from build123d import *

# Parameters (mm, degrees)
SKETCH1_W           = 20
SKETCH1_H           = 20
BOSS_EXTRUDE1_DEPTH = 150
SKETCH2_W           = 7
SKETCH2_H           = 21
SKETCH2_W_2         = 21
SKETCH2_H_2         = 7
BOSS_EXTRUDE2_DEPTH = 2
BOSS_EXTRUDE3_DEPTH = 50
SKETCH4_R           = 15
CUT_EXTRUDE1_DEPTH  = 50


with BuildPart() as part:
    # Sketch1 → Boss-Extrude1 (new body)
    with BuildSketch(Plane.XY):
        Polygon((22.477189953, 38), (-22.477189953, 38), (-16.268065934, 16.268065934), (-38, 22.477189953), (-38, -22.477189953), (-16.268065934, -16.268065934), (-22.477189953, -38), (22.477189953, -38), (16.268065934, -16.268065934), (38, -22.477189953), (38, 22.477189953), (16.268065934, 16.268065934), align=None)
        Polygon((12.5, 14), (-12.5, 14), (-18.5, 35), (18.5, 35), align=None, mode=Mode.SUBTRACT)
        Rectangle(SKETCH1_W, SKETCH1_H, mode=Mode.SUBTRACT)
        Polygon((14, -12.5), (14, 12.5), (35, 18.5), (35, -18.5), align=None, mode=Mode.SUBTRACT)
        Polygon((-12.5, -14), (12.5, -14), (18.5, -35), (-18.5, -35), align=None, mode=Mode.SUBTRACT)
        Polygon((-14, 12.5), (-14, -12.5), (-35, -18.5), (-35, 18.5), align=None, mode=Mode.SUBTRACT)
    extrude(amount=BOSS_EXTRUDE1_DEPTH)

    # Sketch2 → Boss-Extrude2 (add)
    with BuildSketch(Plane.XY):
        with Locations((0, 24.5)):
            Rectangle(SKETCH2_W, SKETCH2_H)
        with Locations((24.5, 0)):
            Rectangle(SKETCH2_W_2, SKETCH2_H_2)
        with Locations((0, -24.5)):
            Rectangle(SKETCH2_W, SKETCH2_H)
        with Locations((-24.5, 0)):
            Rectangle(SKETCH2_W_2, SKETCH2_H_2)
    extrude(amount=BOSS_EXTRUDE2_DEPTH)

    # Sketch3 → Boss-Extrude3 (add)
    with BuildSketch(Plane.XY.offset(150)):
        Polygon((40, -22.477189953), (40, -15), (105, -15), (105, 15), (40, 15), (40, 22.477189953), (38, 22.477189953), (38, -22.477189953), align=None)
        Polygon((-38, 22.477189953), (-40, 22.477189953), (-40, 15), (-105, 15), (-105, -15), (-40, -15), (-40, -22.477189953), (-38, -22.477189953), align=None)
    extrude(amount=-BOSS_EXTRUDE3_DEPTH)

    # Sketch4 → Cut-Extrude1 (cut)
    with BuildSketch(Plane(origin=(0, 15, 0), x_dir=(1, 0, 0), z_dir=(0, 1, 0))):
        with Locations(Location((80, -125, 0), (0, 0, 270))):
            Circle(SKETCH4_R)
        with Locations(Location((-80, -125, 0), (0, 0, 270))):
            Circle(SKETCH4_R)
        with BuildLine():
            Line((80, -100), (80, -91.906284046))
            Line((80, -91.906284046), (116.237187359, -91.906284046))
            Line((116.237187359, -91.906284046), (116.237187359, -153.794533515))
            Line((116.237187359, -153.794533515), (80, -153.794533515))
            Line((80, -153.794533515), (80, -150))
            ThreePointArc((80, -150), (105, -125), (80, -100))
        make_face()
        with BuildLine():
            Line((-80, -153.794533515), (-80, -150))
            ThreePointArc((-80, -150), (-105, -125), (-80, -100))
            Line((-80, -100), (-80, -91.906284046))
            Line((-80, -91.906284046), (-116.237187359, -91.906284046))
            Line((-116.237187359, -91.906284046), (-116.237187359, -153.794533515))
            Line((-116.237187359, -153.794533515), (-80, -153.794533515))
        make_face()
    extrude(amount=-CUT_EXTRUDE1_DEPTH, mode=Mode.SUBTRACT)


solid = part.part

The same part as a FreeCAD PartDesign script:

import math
import FreeCAD as App
import Part
import Sketcher
from FreeCAD import Vector
Q = App.Units.Quantity

doc = App.newDocument("Part")
body = doc.addObject("PartDesign::Body", "Body")

sketch1 = body.newObject("Sketcher::SketchObject", "Sketch")
sketch1.AttachmentSupport = (doc.getObject("XY_Plane"), [""])
sketch1.MapMode = "FlatFace"
sketch1.addGeometry([
    Part.LineSegment(Vector(22, 38, 0), Vector(-22, 38, 0)),
    Part.LineSegment(Vector(-22, 38, 0), Vector(-16, 16, 0)),
    Part.LineSegment(Vector(-16, 16, 0), Vector(-38, 22, 0)),
    Part.LineSegment(Vector(-38, 22, 0), Vector(-38, -22, 0)),
    Part.LineSegment(Vector(-38, -22, 0), Vector(-16, -16, 0)),
    Part.LineSegment(Vector(-16, -16, 0), Vector(-22, -38, 0)),
    Part.LineSegment(Vector(-22, -38, 0), Vector(22, -38, 0)),
    Part.LineSegment(Vector(22, -38, 0), Vector(16, -16, 0)),
    Part.LineSegment(Vector(16, -16, 0), Vector(38, -22, 0)),
    Part.LineSegment(Vector(38, -22, 0), Vector(38, 22, 0)),
    Part.LineSegment(Vector(38, 22, 0), Vector(16, 16, 0)),
    Part.LineSegment(Vector(16, 16, 0), Vector(22, 38, 0)),
    Part.LineSegment(Vector(-18, -35, 0), Vector(-12, -14, 0)),
    Part.LineSegment(Vector(-12, -14, 0), Vector(12, -14, 0)),
    Part.LineSegment(Vector(12, -14, 0), Vector(18, -35, 0)),
    Part.LineSegment(Vector(18, -35, 0), Vector(-18, -35, 0)),
    Part.LineSegment(Vector(-35, 18, 0), Vector(-14, 12, 0)),
    Part.LineSegment(Vector(-14, 12, 0), Vector(-14, -12, 0)),
    Part.LineSegment(Vector(-14, -12, 0), Vector(-35, -18, 0)),
    Part.LineSegment(Vector(-35, -18, 0), Vector(-35, 18, 0)),
    Part.LineSegment(Vector(10, -10, 0), Vector(-10, -10, 0)),
    Part.LineSegment(Vector(-10, -10, 0), Vector(-10, 10, 0)),
    Part.LineSegment(Vector(-10, 10, 0), Vector(10, 10, 0)),
    Part.LineSegment(Vector(10, 10, 0), Vector(10, -10, 0)),
    Part.LineSegment(Vector(35, -18, 0), Vector(14, -12, 0)),
    Part.LineSegment(Vector(14, -12, 0), Vector(14, 12, 0)),
    Part.LineSegment(Vector(14, 12, 0), Vector(35, 18, 0)),
    Part.LineSegment(Vector(35, 18, 0), Vector(35, -18, 0)),
    Part.LineSegment(Vector(18, 35, 0), Vector(12, 14, 0)),
    Part.LineSegment(Vector(12, 14, 0), Vector(-12, 14, 0)),
    Part.LineSegment(Vector(-12, 14, 0), Vector(-18, 35, 0)),
    Part.LineSegment(Vector(-18, 35, 0), Vector(18, 35, 0)),
], False)
sketch1.addConstraint([
    Sketcher.Constraint("Coincident", 0, 2, 1, 1),
    Sketcher.Constraint("Coincident", 1, 2, 2, 1),
    Sketcher.Constraint("Coincident", 2, 2, 3, 1),
    Sketcher.Constraint("Coincident", 3, 2, 4, 1),
    Sketcher.Constraint("Coincident", 4, 2, 5, 1),
    Sketcher.Constraint("Coincident", 5, 2, 6, 1),
    Sketcher.Constraint("Coincident", 6, 2, 7, 1),
    Sketcher.Constraint("Coincident", 7, 2, 8, 1),
    Sketcher.Constraint("Coincident", 8, 2, 9, 1),
    Sketcher.Constraint("Coincident", 9, 2, 10, 1),
    Sketcher.Constraint("Coincident", 10, 2, 11, 1),
    Sketcher.Constraint("Coincident", 11, 2, 0, 1),
    Sketcher.Constraint("Coincident", 12, 2, 13, 1),
    Sketcher.Constraint("Coincident", 13, 2, 14, 1),
    Sketcher.Constraint("Coincident", 14, 2, 15, 1),
    Sketcher.Constraint("Coincident", 15, 2, 12, 1),
    Sketcher.Constraint("Coincident", 16, 2, 17, 1),
    Sketcher.Constraint("Coincident", 17, 2, 18, 1),
    Sketcher.Constraint("Coincident", 18, 2, 19, 1),
    Sketcher.Constraint("Coincident", 19, 2, 16, 1),
    Sketcher.Constraint("Coincident", 20, 2, 21, 1),
    Sketcher.Constraint("Coincident", 21, 2, 22, 1),
    Sketcher.Constraint("Coincident", 22, 2, 23, 1),
    Sketcher.Constraint("Coincident", 23, 2, 20, 1),
    Sketcher.Constraint("Coincident", 24, 2, 25, 1),
    Sketcher.Constraint("Coincident", 25, 2, 26, 1),
    Sketcher.Constraint("Coincident", 26, 2, 27, 1),
    Sketcher.Constraint("Coincident", 27, 2, 24, 1),
    Sketcher.Constraint("Coincident", 28, 2, 29, 1),
    Sketcher.Constraint("Coincident", 29, 2, 30, 1),
    Sketcher.Constraint("Coincident", 30, 2, 31, 1),
    Sketcher.Constraint("Coincident", 31, 2, 28, 1),
    Sketcher.Constraint("Horizontal", 0),
    Sketcher.Constraint("Vertical", 3),
    Sketcher.Constraint("Horizontal", 6),
    Sketcher.Constraint("Vertical", 9),
    Sketcher.Constraint("Horizontal", 13),
    Sketcher.Constraint("Horizontal", 15),
    Sketcher.Constraint("Vertical", 17),
    Sketcher.Constraint("Vertical", 19),
    Sketcher.Constraint("Horizontal", 20),
    Sketcher.Constraint("Vertical", 21),
    Sketcher.Constraint("Horizontal", 22),
    Sketcher.Constraint("Vertical", 23),
    Sketcher.Constraint("Vertical", 25),
    Sketcher.Constraint("Vertical", 27),
    Sketcher.Constraint("Horizontal", 29),
    Sketcher.Constraint("Horizontal", 31),
    Sketcher.Constraint("Symmetric", 0, 2, 6, 2, -1, 1),
    Sketcher.Constraint("Symmetric", 1, 2, 7, 2, -1, 1),
    Sketcher.Constraint("Symmetric", 2, 2, 8, 2, -1, 1),
    Sketcher.Constraint("Symmetric", 4, 2, 10, 2, -1, 1),
    Sketcher.Constraint("Symmetric", 20, 2, 22, 2, -1, 1),
    Sketcher.Constraint("Symmetric", 16, 2, 24, 2, -1, 1),
    Sketcher.Constraint("Symmetric", 18, 2, 26, 2, -1, 1),
    Sketcher.Constraint("Symmetric", 12, 2, 28, 2, -1, 1),
    Sketcher.Constraint("Symmetric", 14, 2, 30, 2, -1, 1),
    Sketcher.Constraint("Symmetric", 4, 2, 7, 2, -2),
    Sketcher.Constraint("Perpendicular", 1, 4),
    Sketcher.Constraint("Perpendicular", 2, 5),
    Sketcher.Constraint("Perpendicular", 7, 10),
    Sketcher.Constraint("Perpendicular", 8, 11),
    Sketcher.Constraint("Parallel", 11, 12),
    Sketcher.Constraint("Perpendicular", 10, 14),
    Sketcher.Constraint("Perpendicular", 12, 16),
    Sketcher.Constraint("Perpendicular", 14, 18),
    Sketcher.Constraint("Parallel", 16, 24),
    Sketcher.Constraint("Parallel", 18, 26),
    Sketcher.Constraint("Perpendicular", 24, 28),
    Sketcher.Constraint("Perpendicular", 26, 30),
    Sketcher.Constraint("Horizontal", 3, 2, 8, 2),
    Sketcher.Constraint("Horizontal", 17, 2, 24, 2),
    Sketcher.Constraint("Vertical", 13, 2, 28, 2),
    Sketcher.Constraint("Equal", 6, 3),
    Sketcher.Constraint("Equal", 29, 17),
    Sketcher.Constraint("Equal", 31, 19),
    Sketcher.Constraint("Equal", 22, 21),
    Sketcher.Constraint("Equal", 1, 2),
    Sketcher.Constraint("DistanceX", 13, 1, 13, 2, Q("25 mm")),
    Sketcher.Constraint("DistanceX", 15, 2, 15, 1, Q("37 mm")),
    Sketcher.Constraint("DistanceX", 20, 2, 20, 1, Q("20 mm")),
    Sketcher.Constraint("DistanceY", -1, 1, 0, 2, Q("38 mm")),
    Sketcher.Constraint("DistanceY", 12, 2, -1, 1, Q("14 mm")),
    Sketcher.Constraint("DistanceY", 14, 2, -1, 1, Q("35 mm")),
    Sketcher.Constraint("DistanceX", 16, 2, -1, 1, Q("14 mm")),
    Sketcher.Constraint("DistanceX", 0, 2, 0, 1, Q("44.95438 mm")),
])
pad1 = body.newObject("PartDesign::Pad", "Pad")
pad1.Profile = sketch1
pad1.Length = 150

sketch2 = body.newObject("Sketcher::SketchObject", "Sketch001")
sketch2.AttachmentSupport = (doc.getObject("XY_Plane"), [""])
sketch2.MapMode = "FlatFace"
sketch2.addGeometry([
    Part.LineSegment(Vector(-4, 35, 0), Vector(-4, 14, 0)),
    Part.LineSegment(Vector(-4, 14, 0), Vector(4, 14, 0)),
    Part.LineSegment(Vector(4, 14, 0), Vector(4, 35, 0)),
    Part.LineSegment(Vector(4, 35, 0), Vector(-4, 35, 0)),
    Part.LineSegment(Vector(14, 4, 0), Vector(14, -4, 0)),
    Part.LineSegment(Vector(14, -4, 0), Vector(35, -4, 0)),
    Part.LineSegment(Vector(35, -4, 0), Vector(35, 4, 0)),
    Part.LineSegment(Vector(35, 4, 0), Vector(14, 4, 0)),
    Part.LineSegment(Vector(-4, -14, 0), Vector(-4, -35, 0)),
    Part.LineSegment(Vector(-4, -35, 0), Vector(4, -35, 0)),
    Part.LineSegment(Vector(4, -35, 0), Vector(4, -14, 0)),
    Part.LineSegment(Vector(4, -14, 0), Vector(-4, -14, 0)),
    Part.LineSegment(Vector(-35, 4, 0), Vector(-35, -4, 0)),
    Part.LineSegment(Vector(-35, -4, 0), Vector(-14, -4, 0)),
    Part.LineSegment(Vector(-14, -4, 0), Vector(-14, 4, 0)),
    Part.LineSegment(Vector(-14, 4, 0), Vector(-35, 4, 0)),
], False)
sketch2.addConstraint([
    Sketcher.Constraint("Coincident", 0, 2, 1, 1),
    Sketcher.Constraint("Coincident", 1, 2, 2, 1),
    Sketcher.Constraint("Coincident", 2, 2, 3, 1),
    Sketcher.Constraint("Coincident", 3, 2, 0, 1),
    Sketcher.Constraint("Coincident", 4, 2, 5, 1),
    Sketcher.Constraint("Coincident", 5, 2, 6, 1),
    Sketcher.Constraint("Coincident", 6, 2, 7, 1),
    Sketcher.Constraint("Coincident", 7, 2, 4, 1),
    Sketcher.Constraint("Coincident", 8, 2, 9, 1),
    Sketcher.Constraint("Coincident", 9, 2, 10, 1),
    Sketcher.Constraint("Coincident", 10, 2, 11, 1),
    Sketcher.Constraint("Coincident", 11, 2, 8, 1),
    Sketcher.Constraint("Coincident", 12, 2, 13, 1),
    Sketcher.Constraint("Coincident", 13, 2, 14, 1),
    Sketcher.Constraint("Coincident", 14, 2, 15, 1),
    Sketcher.Constraint("Coincident", 15, 2, 12, 1),
    Sketcher.Constraint("Vertical", 0),
    Sketcher.Constraint("Horizontal", 1),
    Sketcher.Constraint("Vertical", 2),
    Sketcher.Constraint("Horizontal", 3),
    Sketcher.Constraint("Vertical", 4),
    Sketcher.Constraint("Horizontal", 5),
    Sketcher.Constraint("Vertical", 6),
    Sketcher.Constraint("Horizontal", 7),
    Sketcher.Constraint("Vertical", 8),
    Sketcher.Constraint("Horizontal", 9),
    Sketcher.Constraint("Vertical", 10),
    Sketcher.Constraint("Horizontal", 11),
    Sketcher.Constraint("Vertical", 12),
    Sketcher.Constraint("Horizontal", 13),
    Sketcher.Constraint("Vertical", 14),
    Sketcher.Constraint("Horizontal", 15),
    Sketcher.Constraint("Symmetric", 2, 2, 8, 2, -1, 1),
    Sketcher.Constraint("Symmetric", 0, 2, 10, 2, -1, 1),
    Sketcher.Constraint("Symmetric", 6, 2, 12, 2, -1, 1),
    Sketcher.Constraint("Symmetric", 4, 2, 14, 2, -1, 1),
    Sketcher.Constraint("Horizontal", 5, 2, 12, 2),
    Sketcher.Constraint("Vertical", 3, 2, 8, 2),
    Sketcher.Constraint("Equal", 15, 0),
    Sketcher.Constraint("Equal", 11, 4),
    Sketcher.Constraint("DistanceX", 1, 1, 1, 2, Q("7 mm")),
    Sketcher.Constraint("DistanceX", 5, 1, 5, 2, Q("21 mm")),
    Sketcher.Constraint("DistanceY", -1, 1, 0, 2, Q("14 mm")),
    Sketcher.Constraint("DistanceX", -1, 1, 4, 2, Q("14 mm")),
])
pad2 = body.newObject("PartDesign::Pad", "Pad001")
pad2.Profile = sketch2
pad2.Length = 2

sketch3 = body.newObject("Sketcher::SketchObject", "Sketch002")
sketch3.AttachmentSupport = (doc.getObject("XY_Plane"), [""])
sketch3.MapMode = "FlatFace"
sketch3.AttachmentOffset = App.Placement(Vector(0, 0, 150), App.Rotation())
sketch3.addGeometry([
    Part.LineSegment(Vector(40, -22.5, 0), Vector(40, -15, 0)),
    Part.LineSegment(Vector(40, -15, 0), Vector(105, -15, 0)),
    Part.LineSegment(Vector(105, -15, 0), Vector(105, 15, 0)),
    Part.LineSegment(Vector(105, 15, 0), Vector(40, 15, 0)),
    Part.LineSegment(Vector(40, 15, 0), Vector(40, 22.5, 0)),
    Part.LineSegment(Vector(40, 22.5, 0), Vector(38, 22.5, 0)),
    Part.LineSegment(Vector(38, 22.5, 0), Vector(38, -22.5, 0)),
    Part.LineSegment(Vector(38, -22.5, 0), Vector(40, -22.5, 0)),
    Part.LineSegment(Vector(-38, 22.5, 0), Vector(-40, 22.5, 0)),
    Part.LineSegment(Vector(-40, 22.5, 0), Vector(-40, 15, 0)),
    Part.LineSegment(Vector(-40, 15, 0), Vector(-105, 15, 0)),
    Part.LineSegment(Vector(-105, 15, 0), Vector(-105, -15, 0)),
    Part.LineSegment(Vector(-105, -15, 0), Vector(-40, -15, 0)),
    Part.LineSegment(Vector(-40, -15, 0), Vector(-40, -22.5, 0)),
    Part.LineSegment(Vector(-40, -22.5, 0), Vector(-38, -22.5, 0)),
    Part.LineSegment(Vector(-38, -22.5, 0), Vector(-38, 22.5, 0)),
], False)
sketch3.addConstraint([
    Sketcher.Constraint("Coincident", 0, 2, 1, 1),
    Sketcher.Constraint("Coincident", 1, 2, 2, 1),
    Sketcher.Constraint("Coincident", 2, 2, 3, 1),
    Sketcher.Constraint("Coincident", 3, 2, 4, 1),
    Sketcher.Constraint("Coincident", 4, 2, 5, 1),
    Sketcher.Constraint("Coincident", 5, 2, 6, 1),
    Sketcher.Constraint("Coincident", 6, 2, 7, 1),
    Sketcher.Constraint("Coincident", 7, 2, 0, 1),
    Sketcher.Constraint("Coincident", 8, 2, 9, 1),
    Sketcher.Constraint("Coincident", 9, 2, 10, 1),
    Sketcher.Constraint("Coincident", 10, 2, 11, 1),
    Sketcher.Constraint("Coincident", 11, 2, 12, 1),
    Sketcher.Constraint("Coincident", 12, 2, 13, 1),
    Sketcher.Constraint("Coincident", 13, 2, 14, 1),
    Sketcher.Constraint("Coincident", 14, 2, 15, 1),
    Sketcher.Constraint("Coincident", 15, 2, 8, 1),
    Sketcher.Constraint("Vertical", 0),
    Sketcher.Constraint("Horizontal", 1),
    Sketcher.Constraint("Vertical", 2),
    Sketcher.Constraint("Horizontal", 3),
    Sketcher.Constraint("Vertical", 4),
    Sketcher.Constraint("Horizontal", 5),
    Sketcher.Constraint("Vertical", 6),
    Sketcher.Constraint("Horizontal", 7),
    Sketcher.Constraint("Horizontal", 8),
    Sketcher.Constraint("Vertical", 9),
    Sketcher.Constraint("Horizontal", 10),
    Sketcher.Constraint("Vertical", 11),
    Sketcher.Constraint("Horizontal", 12),
    Sketcher.Constraint("Vertical", 13),
    Sketcher.Constraint("Horizontal", 14),
    Sketcher.Constraint("Vertical", 15),
    Sketcher.Constraint("Symmetric", 7, 2, 8, 2, -1, 1),
    Sketcher.Constraint("Symmetric", 1, 2, 10, 2, -1, 1),
    Sketcher.Constraint("Symmetric", 3, 2, 12, 2, -1, 1),
    Sketcher.Constraint("Symmetric", 5, 2, 14, 2, -1, 1),
    Sketcher.Constraint("Symmetric", 4, 2, 8, 2, -2),
    Sketcher.Constraint("Horizontal", 3, 2, 9, 2),
    Sketcher.Constraint("DistanceX", 1, 1, 1, 2, Q("65 mm")),
    Sketcher.Constraint("DistanceX", 5, 2, 5, 1, Q("2 mm")),
    Sketcher.Constraint("DistanceY", 2, 1, 2, 2, Q("30 mm")),
    Sketcher.Constraint("DistanceX", -1, 1, 0, 2, Q("40 mm")),
    Sketcher.Constraint("DistanceY", 0, 1, 0, 2, Q("7.47719 mm")),
])
pad3 = body.newObject("PartDesign::Pad", "Pad002")
pad3.Profile = sketch3
pad3.Length = 50
pad3.Reversed = True

sketch4 = body.newObject("Sketcher::SketchObject", "Sketch003")
sketch4.AttachmentSupport = (doc.getObject("XZ_Plane"), [""])
sketch4.MapMode = "FlatFace"
sketch4.AttachmentOffset = App.Placement(Vector(0, 0, -15), App.Rotation())
sketch4.addGeometry([
    Part.Circle(Vector(80, 125, 0), Vector(0, 0, 1), 15),
    Part.Circle(Vector(-80, 125, 0), Vector(0, 0, 1), 15),
    Part.LineSegment(Vector(80, 91.9, 0), Vector(80, 100, 0)),
    Part.ArcOfCircle(Part.Circle(Vector(80, 125, 0), Vector(0, 0, 1), 25), math.radians(-90), math.radians(90)),
    Part.LineSegment(Vector(80, 150, 0), Vector(80, 153.8, 0)),
    Part.LineSegment(Vector(80, 153.8, 0), Vector(116.2, 153.8, 0)),
    Part.LineSegment(Vector(116.2, 153.8, 0), Vector(116.2, 91.9, 0)),
    Part.LineSegment(Vector(116.2, 91.9, 0), Vector(80, 91.9, 0)),
    Part.LineSegment(Vector(-80, 153.8, 0), Vector(-80, 150, 0)),
    Part.ArcOfCircle(Part.Circle(Vector(-80, 125, 0), Vector(0, 0, 1), 25), math.radians(90), math.radians(270)),
    Part.LineSegment(Vector(-80, 100, 0), Vector(-80, 91.9, 0)),
    Part.LineSegment(Vector(-80, 91.9, 0), Vector(-116.2, 91.9, 0)),
    Part.LineSegment(Vector(-116.2, 91.9, 0), Vector(-116.2, 153.8, 0)),
    Part.LineSegment(Vector(-116.2, 153.8, 0), Vector(-80, 153.8, 0)),
], False)
sketch4.addConstraint([
    Sketcher.Constraint("Coincident", 2, 2, 3, 1),
    Sketcher.Constraint("Coincident", 3, 2, 4, 1),
    Sketcher.Constraint("Coincident", 4, 2, 5, 1),
    Sketcher.Constraint("Coincident", 5, 2, 6, 1),
    Sketcher.Constraint("Coincident", 6, 2, 7, 1),
    Sketcher.Constraint("Coincident", 7, 2, 2, 1),
    Sketcher.Constraint("Coincident", 8, 2, 9, 1),
    Sketcher.Constraint("Coincident", 9, 2, 10, 1),
    Sketcher.Constraint("Coincident", 10, 2, 11, 1),
    Sketcher.Constraint("Coincident", 11, 2, 12, 1),
    Sketcher.Constraint("Coincident", 12, 2, 13, 1),
    Sketcher.Constraint("Coincident", 13, 2, 8, 1),
    Sketcher.Constraint("Vertical", 2),
    Sketcher.Constraint("Vertical", 4),
    Sketcher.Constraint("Horizontal", 5),
    Sketcher.Constraint("Vertical", 6),
    Sketcher.Constraint("Horizontal", 7),
    Sketcher.Constraint("Vertical", 8),
    Sketcher.Constraint("Vertical", 10),
    Sketcher.Constraint("Horizontal", 11),
    Sketcher.Constraint("Vertical", 12),
    Sketcher.Constraint("Horizontal", 13),
    Sketcher.Constraint("Coincident", 3, 3, 0, 3),
    Sketcher.Constraint("Coincident", 9, 3, 1, 3),
    Sketcher.Constraint("Equal", 0, 1),
    Sketcher.Constraint("Equal", 3, 9),
    Sketcher.Constraint("Symmetric", 0, 3, 1, 3, -2),
    Sketcher.Constraint("Symmetric", 7, 2, 10, 2, -2),
    Sketcher.Constraint("Symmetric", 5, 2, 12, 2, -2),
    Sketcher.Constraint("Vertical", 3, 3, 2, 2),
    Sketcher.Constraint("Vertical", 2, 2, 3, 2),
    Sketcher.Constraint("Vertical", 9, 3, 8, 2),
    Sketcher.Constraint("Diameter", 0, Q("30 mm")),
    Sketcher.Constraint("Radius", 3, Q("25 mm")),
    Sketcher.Constraint("DistanceX", -1, 1, 0, 3, Q("80 mm")),
    Sketcher.Constraint("DistanceY", -1, 1, 0, 3, Q("125 mm")),
    Sketcher.Constraint("DistanceY", 6, 2, 6, 1, Q("61.888249 mm")),
    Sketcher.Constraint("DistanceX", 5, 1, 5, 2, Q("36.237187 mm")),
    Sketcher.Constraint("DistanceY", 2, 1, 2, 2, Q("8.093716 mm")),
])
pocket1 = body.newObject("PartDesign::Pocket", "Pocket")
pocket1.Profile = sketch4
pocket1.Length = 50
pocket1.Reversed = True

doc.recompute()
